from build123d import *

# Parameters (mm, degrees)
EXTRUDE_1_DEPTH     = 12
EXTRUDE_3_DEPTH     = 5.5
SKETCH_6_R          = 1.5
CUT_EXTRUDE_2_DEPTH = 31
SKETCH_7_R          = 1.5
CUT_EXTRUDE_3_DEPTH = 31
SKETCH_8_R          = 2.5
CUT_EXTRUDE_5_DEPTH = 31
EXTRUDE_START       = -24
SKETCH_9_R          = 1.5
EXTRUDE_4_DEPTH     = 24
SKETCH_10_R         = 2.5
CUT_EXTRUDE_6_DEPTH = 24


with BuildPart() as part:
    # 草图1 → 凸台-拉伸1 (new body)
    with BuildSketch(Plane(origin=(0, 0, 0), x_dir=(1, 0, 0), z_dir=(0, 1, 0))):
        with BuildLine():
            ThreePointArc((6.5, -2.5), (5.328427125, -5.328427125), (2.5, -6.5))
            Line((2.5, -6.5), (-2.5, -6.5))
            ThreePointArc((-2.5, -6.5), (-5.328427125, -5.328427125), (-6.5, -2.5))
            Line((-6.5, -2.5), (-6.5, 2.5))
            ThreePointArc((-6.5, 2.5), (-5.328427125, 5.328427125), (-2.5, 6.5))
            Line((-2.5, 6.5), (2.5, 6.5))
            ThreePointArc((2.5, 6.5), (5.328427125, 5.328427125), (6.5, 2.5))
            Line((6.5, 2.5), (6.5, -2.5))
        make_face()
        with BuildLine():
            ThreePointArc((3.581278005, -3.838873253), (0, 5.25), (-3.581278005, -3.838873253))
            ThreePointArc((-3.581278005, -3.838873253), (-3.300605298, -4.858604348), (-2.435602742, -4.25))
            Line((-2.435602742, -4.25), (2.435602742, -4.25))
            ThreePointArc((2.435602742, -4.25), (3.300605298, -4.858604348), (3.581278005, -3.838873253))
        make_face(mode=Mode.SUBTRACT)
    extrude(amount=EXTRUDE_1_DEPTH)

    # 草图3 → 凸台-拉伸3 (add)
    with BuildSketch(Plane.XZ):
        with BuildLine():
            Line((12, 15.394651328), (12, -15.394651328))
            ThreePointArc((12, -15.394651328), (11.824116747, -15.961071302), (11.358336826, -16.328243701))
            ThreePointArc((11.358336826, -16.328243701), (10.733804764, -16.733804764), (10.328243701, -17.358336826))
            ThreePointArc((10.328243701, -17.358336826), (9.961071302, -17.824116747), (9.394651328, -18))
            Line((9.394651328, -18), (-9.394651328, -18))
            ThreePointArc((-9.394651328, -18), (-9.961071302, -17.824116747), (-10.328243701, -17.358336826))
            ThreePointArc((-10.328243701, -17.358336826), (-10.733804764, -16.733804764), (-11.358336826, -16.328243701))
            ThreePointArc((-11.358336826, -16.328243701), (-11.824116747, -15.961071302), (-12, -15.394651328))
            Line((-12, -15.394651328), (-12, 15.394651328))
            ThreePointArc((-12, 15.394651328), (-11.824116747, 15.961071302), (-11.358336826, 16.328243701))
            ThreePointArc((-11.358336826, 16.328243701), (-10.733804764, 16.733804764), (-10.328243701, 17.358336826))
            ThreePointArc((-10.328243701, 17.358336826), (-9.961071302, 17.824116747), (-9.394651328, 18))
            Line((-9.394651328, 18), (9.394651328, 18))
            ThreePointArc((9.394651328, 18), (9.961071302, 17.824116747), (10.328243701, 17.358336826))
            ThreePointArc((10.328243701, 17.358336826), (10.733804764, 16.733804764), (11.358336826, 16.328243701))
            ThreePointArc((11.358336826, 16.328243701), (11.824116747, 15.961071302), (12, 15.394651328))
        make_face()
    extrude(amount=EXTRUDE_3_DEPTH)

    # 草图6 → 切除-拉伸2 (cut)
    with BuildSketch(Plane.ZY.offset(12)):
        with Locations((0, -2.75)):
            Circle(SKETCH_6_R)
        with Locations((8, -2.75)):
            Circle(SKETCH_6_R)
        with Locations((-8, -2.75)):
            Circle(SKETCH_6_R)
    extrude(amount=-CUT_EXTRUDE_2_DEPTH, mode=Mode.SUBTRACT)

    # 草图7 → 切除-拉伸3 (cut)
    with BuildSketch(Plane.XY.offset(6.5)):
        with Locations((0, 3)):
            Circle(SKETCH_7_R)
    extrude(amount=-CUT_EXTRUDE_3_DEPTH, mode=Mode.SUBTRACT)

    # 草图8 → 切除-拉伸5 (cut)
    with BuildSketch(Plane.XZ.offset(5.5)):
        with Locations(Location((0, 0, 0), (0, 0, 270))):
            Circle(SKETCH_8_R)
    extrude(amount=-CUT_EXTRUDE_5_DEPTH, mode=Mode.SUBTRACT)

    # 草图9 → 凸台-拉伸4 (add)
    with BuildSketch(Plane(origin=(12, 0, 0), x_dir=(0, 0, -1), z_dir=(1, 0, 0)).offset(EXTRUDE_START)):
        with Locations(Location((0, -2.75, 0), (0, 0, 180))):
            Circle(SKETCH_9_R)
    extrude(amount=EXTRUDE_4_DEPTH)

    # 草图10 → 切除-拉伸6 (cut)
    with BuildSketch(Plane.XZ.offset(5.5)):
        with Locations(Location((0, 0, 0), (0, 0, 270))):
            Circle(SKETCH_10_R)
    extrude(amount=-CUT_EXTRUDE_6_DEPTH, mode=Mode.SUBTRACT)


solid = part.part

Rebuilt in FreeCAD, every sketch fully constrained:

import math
import FreeCAD as App
import Part
import Sketcher
from FreeCAD import Vector
Q = App.Units.Quantity

doc = App.newDocument("Part")
body = doc.addObject("PartDesign::Body", "Body")

sketch1 = body.newObject("Sketcher::SketchObject", "Sketch")
sketch1.AttachmentSupport = (doc.getObject("XZ_Plane"), [""])
sketch1.MapMode = "FlatFace"
sketch1.addGeometry([
    Part.ArcOfCircle(Part.Circle(Vector(2.5, 2.5, 0), Vector(0, 0, 1), 4), math.radians(0), math.radians(90)),
    Part.LineSegment(Vector(6.5, 2.5, 0), Vector(6.5, -2.5, 0)),
    Part.ArcOfCircle(Part.Circle(Vector(2.5, -2.5, 0), Vector(0, 0, 1), 4), math.radians(-90), math.radians(0)),
    Part.LineSegment(Vector(2.5, -6.5, 0), Vector(-2.5, -6.5, 0)),
    Part.ArcOfCircle(Part.Circle(Vector(-2.5, -2.5, 0), Vector(0, 0, 1), 4), math.radians(180), math.radians(270)),
    Part.LineSegment(Vector(-6.5, -2.5, 0), Vector(-6.5, 2.5, 0)),
    Part.ArcOfCircle(Part.Circle(Vector(-2.5, 2.5, 0), Vector(0, 0, 1), 4), math.radians(90), math.radians(180)),
    Part.LineSegment(Vector(-2.5, 6.5, 0), Vector(2.5, 6.5, 0)),
    Part.ArcOfCircle(Part.Circle(Vector(3.082207, 4.25, 0), Vector(0, 0, 1), 0.646604), math.radians(-39.481153), math.radians(180)),
    Part.LineSegment(Vector(2.435603, 4.25, 0), Vector(-2.435603, 4.25, 0)),
    Part.ArcOfCircle(Part.Circle(Vector(-3.082207, 4.25, 0), Vector(0, 0, 1), 0.646604), math.radians(0), math.radians(219.481153)),
    Part.ArcOfCircle(Part.Circle(Vector(0, 0, 0), Vector(0, 0, 1), 5.25), math.radians(133.011739), math.radians(406.988261)),
], False)
sketch1.addConstraint([
    Sketcher.Constraint("Tangent", 0, 1, 1, 1),
    Sketcher.Constraint("Tangent", 1, 2, 2, 2),
    Sketcher.Constraint("Tangent", 2, 1, 3, 1),
    Sketcher.Constraint("Tangent", 3, 2, 4, 2),
    Sketcher.Constraint("Tangent", 4, 1, 5, 1),
    Sketcher.Constraint("Tangent", 5, 2, 6, 2),
    Sketcher.Constraint("Tangent", 6, 1, 7, 1),
    Sketcher.Constraint("Tangent", 7, 2, 0, 2),
    Sketcher.Constraint("Coincident", 8, 2, 9, 1),
    Sketcher.Constraint("Coincident", 9, 2, 10, 1),
    Sketcher.Constraint("Coincident", 10, 2, 11, 1),
    Sketcher.Constraint("Coincident", 11, 2, 8, 1),
    Sketcher.Constraint("Vertical", 1),
    Sketcher.Constraint("Horizontal", 3),
    Sketcher.Constraint("Vertical", 5),
    Sketcher.Constraint("Horizontal", 7),
    Sketcher.Constraint("Horizontal", 9),
    Sketcher.Constraint("Coincident", 11, 3, -1, 1),
    Sketcher.Constraint("Equal", 0, 2),
    Sketcher.Constraint("Equal", 2, 4),
    Sketcher.Constraint("Equal", 4, 6),
    Sketcher.Constraint("Equal", 8, 10),
    Sketcher.Constraint("Symmetric", 0, 3, 4, 3, -1, 1),
    Sketcher.Constraint("Symmetric", 8, 3, 10, 3, -2),
    Sketcher.Constraint("Horizontal", 10, 3, 8, 2),
    Sketcher.Constraint("Equal", 7, 1),
    Sketcher.Constraint("Radius", 0, Q("4 mm")),
    Sketcher.Constraint("DistanceX", 3, 2, 3, 1, Q("5 mm")),
    Sketcher.Constraint("Radius", 11, Q("5.25 mm")),
    Sketcher.Constraint("DistanceY", -1, 1, 8, 3, Q("4.25 mm")),
    Sketcher.Constraint("Radius", 8, Q("0.646604 mm")),
    Sketcher.Constraint("DistanceX", 9, 2, 9, 1, Q("4.871205 mm")),
])
pad1 = body.newObject("PartDesign::Pad", "Pad")
pad1.Profile = sketch1
pad1.Length = 12
pad1.Reversed = True

sketch2 = body.newObject("Sketcher::SketchObject", "Sketch001")
sketch2.AttachmentSupport = (doc.getObject("XZ_Plane"), [""])
sketch2.MapMode = "FlatFace"
sketch2.addGeometry([
    Part.LineSegment(Vector(12, -15.394651, 0), Vector(12, 15.394651, 0)),
    Part.ArcOfCircle(Part.Circle(Vector(11, 15.394651, 0), Vector(0, 0, 1), 1), math.radians(0), math.radians(69.00191)),
    Part.ArcOfCircle(Part.Circle(Vector(12, 18, 0), Vector(0, 0, 1), 1.79067), math.radians(-159.00191), math.radians(-110.99809)),
    Part.ArcOfCircle(Part.Circle(Vector(9.394651, 17, 0), Vector(0, 0, 1), 1), math.radians(20.99809), math.radians(90)),
    Part.LineSegment(Vector(9.394651, 18, 0), Vector(-9.394651, 18, 0)),
    Part.ArcOfCircle(Part.Circle(Vector(-9.394651, 17, 0), Vector(0, 0, 1), 1), math.radians(90), math.radians(159.00191)),
    Part.ArcOfCircle(Part.Circle(Vector(-12, 18, 0), Vector(0, 0, 1), 1.79067), math.radians(-69.00191), math.radians(-20.99809)),
    Part.ArcOfCircle(Part.Circle(Vector(-11, 15.394651, 0), Vector(0, 0, 1), 1), math.radians(110.99809), math.radians(180)),
    Part.LineSegment(Vector(-12, 15.394651, 0), Vector(-12, -15.394651, 0)),
    Part.ArcOfCircle(Part.Circle(Vector(-11, -15.394651, 0), Vector(0, 0, 1), 1), math.radians(-180), math.radians(-110.99809)),
    Part.ArcOfCircle(Part.Circle(Vector(-12, -18, 0), Vector(0, 0, 1), 1.79067), math.radians(20.99809), math.radians(69.00191)),
    Part.ArcOfCircle(Part.Circle(Vector(-9.394651, -17, 0), Vector(0, 0, 1), 1), math.radians(-159.00191), math.radians(-90)),
    Part.LineSegment(Vector(-9.394651, -18, 0), Vector(9.394651, -18, 0)),
    Part.ArcOfCircle(Part.Circle(Vector(9.394651, -17, 0), Vector(0, 0, 1), 1), math.radians(-90), math.radians(-20.99809)),
    Part.ArcOfCircle(Part.Circle(Vector(12, -18, 0), Vector(0, 0, 1), 1.79067), math.radians(110.99809), math.radians(159.00191)),
    Part.ArcOfCircle(Part.Circle(Vector(11, -15.394651, 0), Vector(0, 0, 1), 1), math.radians(-69.00191), math.radians(0)),
], False)
sketch2.addConstraint([
    Sketcher.Constraint("Tangent", 0, 2, 1, 1),
    Sketcher.Constraint("Tangent", 1, 2, 2, 2),
    Sketcher.Constraint("Tangent", 2, 1, 3, 1),
    Sketcher.Constraint("Tangent", 3, 2, 4, 1),
    Sketcher.Constraint("Tangent", 4, 2, 5, 1),
    Sketcher.Constraint("Tangent", 5, 2, 6, 2),
    Sketcher.Constraint("Tangent", 6, 1, 7, 1),
    Sketcher.Constraint("Tangent", 7, 2, 8, 1),
    Sketcher.Constraint("Tangent", 8, 2, 9, 1),
    Sketcher.Constraint("Tangent", 9, 2, 10, 2),
    Sketcher.Constraint("Tangent", 10, 1, 11, 1),
    Sketcher.Constraint("Tangent", 11, 2, 12, 1),
    Sketcher.Constraint("Tangent", 12, 2, 13, 1),
    Sketcher.Constraint("Tangent", 13, 2, 14, 2),
    Sketcher.Constraint("Tangent", 14, 1, 15, 1),
    Sketcher.Constraint("Tangent", 15, 2, 0, 1),
    Sketcher.Constraint("Vertical", 0),
    Sketcher.Constraint("Horizontal", 4),
    Sketcher.Constraint("Vertical", 8),
    Sketcher.Constraint("Horizontal", 12),
    Sketcher.Constraint("Equal", 1, 3),
    Sketcher.Constraint("Equal", 3, 5),
    Sketcher.Constraint("Equal", 2, 6),
    Sketcher.Constraint("Equal", 5, 7),
    Sketcher.Constraint("Equal", 7, 9),
    Sketcher.Constraint("Equal", 6, 10),
    Sketcher.Constraint("Equal", 9, 11),
    Sketcher.Constraint("Equal", 11, 13),
    Sketcher.Constraint("Equal", 10, 14),
    Sketcher.Constraint("Equal", 13, 15),
    Sketcher.Constraint("Symmetric", 1, 3, 9, 3, -1, 1),
    Sketcher.Constraint("Symmetric", 3, 3, 11, 3, -1, 1),
    Sketcher.Constraint("Symmetric", 6, 3, 14, 3, -1, 1),
    Sketcher.Constraint("Symmetric", 2, 3, 6, 3, -2),
    Sketcher.Constraint("Horizontal", 6, 3, 3, 2),
    Sketcher.Constraint("Vertical", 14, 3, 0, 2),
    Sketcher.Constraint("Radius", 1, Q("1 mm")),
    Sketcher.Constraint("DistanceX", -1, 1, 1, 3, Q("11 mm")),
    Sketcher.Constraint("DistanceY", -1, 1, 2, 3, Q("18 mm")),
    Sketcher.Constraint("Radius", 2, Q("1.79067 mm")),
])
pad2 = body.newObject("PartDesign::Pad", "Pad001")
pad2.Profile = sketch2
pad2.Length = 5.5

sketch3 = body.newObject("Sketcher::SketchObject", "Sketch002")
sketch3.AttachmentSupport = (doc.getObject("YZ_Plane"), [""])
sketch3.MapMode = "FlatFace"
sketch3.AttachmentOffset = App.Placement(Vector(0, 0, -12), App.Rotation())
sketch3.addGeometry([
    Part.Circle(Vector(-2.75, 0, 0), Vector(0, 0, 1), 1.5),
    Part.Circle(Vector(-2.75, 8, 0), Vector(0, 0, 1), 1.5),
    Part.Circle(Vector(-2.75, -8, 0), Vector(0, 0, 1), 1.5),
], False)
sketch3.addConstraint([
    Sketcher.Constraint("Equal", 0, 1),
    Sketcher.Constraint("Equal", 1, 2),
    Sketcher.Constraint("Symmetric", 1, 3, 2, 3, -1),
    Sketcher.Constraint("PointOnObject", 0, 3, -1),
    Sketcher.Constraint("Vertical", 0, 3, 1, 3),
    Sketcher.Constraint("Diameter", 0, Q("3 mm")),
    Sketcher.Constraint("DistanceY", -1, 1, 1, 3, Q("8 mm")),
    Sketcher.Constraint("DistanceX", 0, 3, -1, 1, Q("2.75 mm")),
])
pocket1 = body.newObject("PartDesign::Pocket", "Pocket")
pocket1.Profile = sketch3
pocket1.Length = 31
pocket1.Reversed = True

sketch4 = body.newObject("Sketcher::SketchObject", "Sketch003")
sketch4.AttachmentSupport = (doc.getObject("XY_Plane"), [""])
sketch4.MapMode = "FlatFace"
sketch4.AttachmentOffset = App.Placement(Vector(0, 0, 6.5), App.Rotation())
sketch4.addGeometry(Part.Circle(Vector(0, 3, 0), Vector(0, 0, 1), 1.5), False)
sketch4.addConstraint([
    Sketcher.Constraint("PointOnObject", 0, 3, -2),
    Sketcher.Constraint("Diameter", 0, Q("3 mm")),
    Sketcher.Constraint("DistanceY", -1, 1, 0, 3, Q("3 mm")),
])
pocket2 = body.newObject("PartDesign::Pocket", "Pocket001")
pocket2.Profile = sketch4
pocket2.Length = 31

sketch5 = body.newObject("Sketcher::SketchObject", "Sketch004")
sketch5.AttachmentSupport = (doc.getObject("XZ_Plane"), [""])
sketch5.MapMode = "FlatFace"
sketch5.AttachmentOffset = App.Placement(Vector(0, 0, 5.5), App.Rotation())
sketch5.addGeometry(Part.Circle(Vector(0, 0, 0), Vector(0, 0, 1), 2.5), False)
sketch5.addConstraint([
    Sketcher.Constraint("Coincident", 0, 3, -1, 1),
    Sketcher.Constraint("Diameter", 0, Q("5 mm")),
])
pocket3 = body.newObject("PartDesign::Pocket", "Pocket002")
pocket3.Profile = sketch5
pocket3.Length = 31

sketch6 = body.newObject("Sketcher::SketchObject", "Sketch005")
sketch6.AttachmentSupport = (doc.getObject("YZ_Plane"), [""])
sketch6.MapMode = "FlatFace"
sketch6.AttachmentOffset = App.Placement(Vector(0, 0, -12), App.Rotation())
sketch6.addGeometry(Part.Circle(Vector(-2.75, 0, 0), Vector(0, 0, 1), 1.5), False)
sketch6.addConstraint([
    Sketcher.Constraint("PointOnObject", 0, 3, -1),
    Sketcher.Constraint("Diameter", 0, Q("3 mm")),
    Sketcher.Constraint("DistanceX", 0, 3, -1, 1, Q("2.75 mm")),
])
pad3 = body.newObject("PartDesign::Pad", "Pad002")
pad3.Profile = sketch6
pad3.Length = 24

sketch7 = body.newObject("Sketcher::SketchObject", "Sketch006")
sketch7.AttachmentSupport = (doc.getObject("XZ_Plane"), [""])
sketch7.MapMode = "FlatFace"
sketch7.AttachmentOffset = App.Placement(Vector(0, 0, 5.5), App.Rotation())
sketch7.addGeometry(Part.Circle(Vector(0, 0, 0), Vector(0, 0, 1), 2.5), False)
sketch7.addConstraint([
    Sketcher.Constraint("Coincident", 0, 3, -1, 1),
    Sketcher.Constraint("Diameter", 0, Q("5 mm")),
])
pocket4 = body.newObject("PartDesign::Pocket", "Pocket003")
pocket4.Profile = sketch7
pocket4.Length = 24

doc.recompute()
